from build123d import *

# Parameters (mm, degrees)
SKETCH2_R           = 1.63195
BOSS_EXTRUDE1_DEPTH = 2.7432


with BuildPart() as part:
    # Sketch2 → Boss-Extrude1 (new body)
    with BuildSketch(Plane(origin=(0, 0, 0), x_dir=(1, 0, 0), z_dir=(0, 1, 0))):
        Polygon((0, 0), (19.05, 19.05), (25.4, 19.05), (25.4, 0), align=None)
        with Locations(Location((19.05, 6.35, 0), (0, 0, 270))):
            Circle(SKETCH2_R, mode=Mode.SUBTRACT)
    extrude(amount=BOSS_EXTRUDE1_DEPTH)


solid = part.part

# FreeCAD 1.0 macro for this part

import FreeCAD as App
import Part
import Sketcher
Q = App.Units.Quantity


def add_polygon(sketch, points):
    """Adds a closed chain of lines whose ends are joined by coincident constraints."""
    first, n = sketch.GeometryCount, len(points)
    for a, b in zip(points, points[1:] + points[:1]):
        sketch.addGeometry(Part.LineSegment(App.Vector(*a, 0), App.Vector(*b, 0)), False)
    for i in range(n):
        sketch.addConstraint(Sketcher.Constraint("Coincident", first + i, 2, first + (i + 1) % n, 1))

doc = App.newDocument("Part")
params = doc.addObject("Spreadsheet::Sheet", "Params")
for row, (alias, value) in enumerate([
    ("sketch1_width", "1 in"),
    ("sketch1_width2", "0.25 in"),
    ("pad1_length", "0.108 in"),
], start=1):
    params.set(f"A{row}", alias)
    params.set(f"B{row}", "=" + value)
    params.setAlias(f"B{row}", alias)

body = doc.addObject("PartDesign::Body", "Body")

# Sketch on XZ plane
sketch1 = body.newObject("Sketcher::SketchObject", "Sketch")
sketch1.AttachmentSupport = (doc.getObject("XZ_Plane"), [""])
sketch1.MapMode = "FlatFace"
add_polygon(sketch1, [(19.1, -19.1), (0, 0), (25.4, 0), (25.4, -19.1)])  # lines 0-3
sketch1.addGeometry(Part.Circle(App.Vector(19.1, -6.3, 0), App.Vector(0, 0, 1), 1.6), False)  # 4
sketch1.addConstraint(Sketcher.Constraint("Horizontal", 1))
sketch1.addConstraint(Sketcher.Constraint("Vertical", 2))
sketch1.addConstraint(Sketcher.Constraint("Horizontal", 3))
sketch1.addConstraint(Sketcher.Constraint("Coincident", 0, 2, -1, 1))
sketch1.addConstraint(Sketcher.Constraint("Vertical", 4, 3, 3, 2))
sketch1.addConstraint(Sketcher.Constraint("DistanceX", 1, 1, 1, 2, Q("1 in")))
sketch1.addConstraint(Sketcher.Constraint("Angle", 0, Q("135 deg")))
sketch1.addConstraint(Sketcher.Constraint("Diameter", 4, Q("0.1285 in")))
sketch1.addConstraint(Sketcher.Constraint("DistanceX", 3, 2, 3, 1, Q("0.25 in")))
sketch1.addConstraint(Sketcher.Constraint("DistanceY", 2, 2, 4, 3, Q("0.5 in")))
sketch1.setExpression("Constraints[9]", "Params.sketch1_width")
sketch1.setExpression("Constraints[12]", "Params.sketch1_width2")
pad1 = body.newObject("PartDesign::Pad", "Pad")
pad1.Profile = sketch1
pad1.setExpression("Length", "Params.pad1_length")
pad1.Reversed = True

doc.recompute()
